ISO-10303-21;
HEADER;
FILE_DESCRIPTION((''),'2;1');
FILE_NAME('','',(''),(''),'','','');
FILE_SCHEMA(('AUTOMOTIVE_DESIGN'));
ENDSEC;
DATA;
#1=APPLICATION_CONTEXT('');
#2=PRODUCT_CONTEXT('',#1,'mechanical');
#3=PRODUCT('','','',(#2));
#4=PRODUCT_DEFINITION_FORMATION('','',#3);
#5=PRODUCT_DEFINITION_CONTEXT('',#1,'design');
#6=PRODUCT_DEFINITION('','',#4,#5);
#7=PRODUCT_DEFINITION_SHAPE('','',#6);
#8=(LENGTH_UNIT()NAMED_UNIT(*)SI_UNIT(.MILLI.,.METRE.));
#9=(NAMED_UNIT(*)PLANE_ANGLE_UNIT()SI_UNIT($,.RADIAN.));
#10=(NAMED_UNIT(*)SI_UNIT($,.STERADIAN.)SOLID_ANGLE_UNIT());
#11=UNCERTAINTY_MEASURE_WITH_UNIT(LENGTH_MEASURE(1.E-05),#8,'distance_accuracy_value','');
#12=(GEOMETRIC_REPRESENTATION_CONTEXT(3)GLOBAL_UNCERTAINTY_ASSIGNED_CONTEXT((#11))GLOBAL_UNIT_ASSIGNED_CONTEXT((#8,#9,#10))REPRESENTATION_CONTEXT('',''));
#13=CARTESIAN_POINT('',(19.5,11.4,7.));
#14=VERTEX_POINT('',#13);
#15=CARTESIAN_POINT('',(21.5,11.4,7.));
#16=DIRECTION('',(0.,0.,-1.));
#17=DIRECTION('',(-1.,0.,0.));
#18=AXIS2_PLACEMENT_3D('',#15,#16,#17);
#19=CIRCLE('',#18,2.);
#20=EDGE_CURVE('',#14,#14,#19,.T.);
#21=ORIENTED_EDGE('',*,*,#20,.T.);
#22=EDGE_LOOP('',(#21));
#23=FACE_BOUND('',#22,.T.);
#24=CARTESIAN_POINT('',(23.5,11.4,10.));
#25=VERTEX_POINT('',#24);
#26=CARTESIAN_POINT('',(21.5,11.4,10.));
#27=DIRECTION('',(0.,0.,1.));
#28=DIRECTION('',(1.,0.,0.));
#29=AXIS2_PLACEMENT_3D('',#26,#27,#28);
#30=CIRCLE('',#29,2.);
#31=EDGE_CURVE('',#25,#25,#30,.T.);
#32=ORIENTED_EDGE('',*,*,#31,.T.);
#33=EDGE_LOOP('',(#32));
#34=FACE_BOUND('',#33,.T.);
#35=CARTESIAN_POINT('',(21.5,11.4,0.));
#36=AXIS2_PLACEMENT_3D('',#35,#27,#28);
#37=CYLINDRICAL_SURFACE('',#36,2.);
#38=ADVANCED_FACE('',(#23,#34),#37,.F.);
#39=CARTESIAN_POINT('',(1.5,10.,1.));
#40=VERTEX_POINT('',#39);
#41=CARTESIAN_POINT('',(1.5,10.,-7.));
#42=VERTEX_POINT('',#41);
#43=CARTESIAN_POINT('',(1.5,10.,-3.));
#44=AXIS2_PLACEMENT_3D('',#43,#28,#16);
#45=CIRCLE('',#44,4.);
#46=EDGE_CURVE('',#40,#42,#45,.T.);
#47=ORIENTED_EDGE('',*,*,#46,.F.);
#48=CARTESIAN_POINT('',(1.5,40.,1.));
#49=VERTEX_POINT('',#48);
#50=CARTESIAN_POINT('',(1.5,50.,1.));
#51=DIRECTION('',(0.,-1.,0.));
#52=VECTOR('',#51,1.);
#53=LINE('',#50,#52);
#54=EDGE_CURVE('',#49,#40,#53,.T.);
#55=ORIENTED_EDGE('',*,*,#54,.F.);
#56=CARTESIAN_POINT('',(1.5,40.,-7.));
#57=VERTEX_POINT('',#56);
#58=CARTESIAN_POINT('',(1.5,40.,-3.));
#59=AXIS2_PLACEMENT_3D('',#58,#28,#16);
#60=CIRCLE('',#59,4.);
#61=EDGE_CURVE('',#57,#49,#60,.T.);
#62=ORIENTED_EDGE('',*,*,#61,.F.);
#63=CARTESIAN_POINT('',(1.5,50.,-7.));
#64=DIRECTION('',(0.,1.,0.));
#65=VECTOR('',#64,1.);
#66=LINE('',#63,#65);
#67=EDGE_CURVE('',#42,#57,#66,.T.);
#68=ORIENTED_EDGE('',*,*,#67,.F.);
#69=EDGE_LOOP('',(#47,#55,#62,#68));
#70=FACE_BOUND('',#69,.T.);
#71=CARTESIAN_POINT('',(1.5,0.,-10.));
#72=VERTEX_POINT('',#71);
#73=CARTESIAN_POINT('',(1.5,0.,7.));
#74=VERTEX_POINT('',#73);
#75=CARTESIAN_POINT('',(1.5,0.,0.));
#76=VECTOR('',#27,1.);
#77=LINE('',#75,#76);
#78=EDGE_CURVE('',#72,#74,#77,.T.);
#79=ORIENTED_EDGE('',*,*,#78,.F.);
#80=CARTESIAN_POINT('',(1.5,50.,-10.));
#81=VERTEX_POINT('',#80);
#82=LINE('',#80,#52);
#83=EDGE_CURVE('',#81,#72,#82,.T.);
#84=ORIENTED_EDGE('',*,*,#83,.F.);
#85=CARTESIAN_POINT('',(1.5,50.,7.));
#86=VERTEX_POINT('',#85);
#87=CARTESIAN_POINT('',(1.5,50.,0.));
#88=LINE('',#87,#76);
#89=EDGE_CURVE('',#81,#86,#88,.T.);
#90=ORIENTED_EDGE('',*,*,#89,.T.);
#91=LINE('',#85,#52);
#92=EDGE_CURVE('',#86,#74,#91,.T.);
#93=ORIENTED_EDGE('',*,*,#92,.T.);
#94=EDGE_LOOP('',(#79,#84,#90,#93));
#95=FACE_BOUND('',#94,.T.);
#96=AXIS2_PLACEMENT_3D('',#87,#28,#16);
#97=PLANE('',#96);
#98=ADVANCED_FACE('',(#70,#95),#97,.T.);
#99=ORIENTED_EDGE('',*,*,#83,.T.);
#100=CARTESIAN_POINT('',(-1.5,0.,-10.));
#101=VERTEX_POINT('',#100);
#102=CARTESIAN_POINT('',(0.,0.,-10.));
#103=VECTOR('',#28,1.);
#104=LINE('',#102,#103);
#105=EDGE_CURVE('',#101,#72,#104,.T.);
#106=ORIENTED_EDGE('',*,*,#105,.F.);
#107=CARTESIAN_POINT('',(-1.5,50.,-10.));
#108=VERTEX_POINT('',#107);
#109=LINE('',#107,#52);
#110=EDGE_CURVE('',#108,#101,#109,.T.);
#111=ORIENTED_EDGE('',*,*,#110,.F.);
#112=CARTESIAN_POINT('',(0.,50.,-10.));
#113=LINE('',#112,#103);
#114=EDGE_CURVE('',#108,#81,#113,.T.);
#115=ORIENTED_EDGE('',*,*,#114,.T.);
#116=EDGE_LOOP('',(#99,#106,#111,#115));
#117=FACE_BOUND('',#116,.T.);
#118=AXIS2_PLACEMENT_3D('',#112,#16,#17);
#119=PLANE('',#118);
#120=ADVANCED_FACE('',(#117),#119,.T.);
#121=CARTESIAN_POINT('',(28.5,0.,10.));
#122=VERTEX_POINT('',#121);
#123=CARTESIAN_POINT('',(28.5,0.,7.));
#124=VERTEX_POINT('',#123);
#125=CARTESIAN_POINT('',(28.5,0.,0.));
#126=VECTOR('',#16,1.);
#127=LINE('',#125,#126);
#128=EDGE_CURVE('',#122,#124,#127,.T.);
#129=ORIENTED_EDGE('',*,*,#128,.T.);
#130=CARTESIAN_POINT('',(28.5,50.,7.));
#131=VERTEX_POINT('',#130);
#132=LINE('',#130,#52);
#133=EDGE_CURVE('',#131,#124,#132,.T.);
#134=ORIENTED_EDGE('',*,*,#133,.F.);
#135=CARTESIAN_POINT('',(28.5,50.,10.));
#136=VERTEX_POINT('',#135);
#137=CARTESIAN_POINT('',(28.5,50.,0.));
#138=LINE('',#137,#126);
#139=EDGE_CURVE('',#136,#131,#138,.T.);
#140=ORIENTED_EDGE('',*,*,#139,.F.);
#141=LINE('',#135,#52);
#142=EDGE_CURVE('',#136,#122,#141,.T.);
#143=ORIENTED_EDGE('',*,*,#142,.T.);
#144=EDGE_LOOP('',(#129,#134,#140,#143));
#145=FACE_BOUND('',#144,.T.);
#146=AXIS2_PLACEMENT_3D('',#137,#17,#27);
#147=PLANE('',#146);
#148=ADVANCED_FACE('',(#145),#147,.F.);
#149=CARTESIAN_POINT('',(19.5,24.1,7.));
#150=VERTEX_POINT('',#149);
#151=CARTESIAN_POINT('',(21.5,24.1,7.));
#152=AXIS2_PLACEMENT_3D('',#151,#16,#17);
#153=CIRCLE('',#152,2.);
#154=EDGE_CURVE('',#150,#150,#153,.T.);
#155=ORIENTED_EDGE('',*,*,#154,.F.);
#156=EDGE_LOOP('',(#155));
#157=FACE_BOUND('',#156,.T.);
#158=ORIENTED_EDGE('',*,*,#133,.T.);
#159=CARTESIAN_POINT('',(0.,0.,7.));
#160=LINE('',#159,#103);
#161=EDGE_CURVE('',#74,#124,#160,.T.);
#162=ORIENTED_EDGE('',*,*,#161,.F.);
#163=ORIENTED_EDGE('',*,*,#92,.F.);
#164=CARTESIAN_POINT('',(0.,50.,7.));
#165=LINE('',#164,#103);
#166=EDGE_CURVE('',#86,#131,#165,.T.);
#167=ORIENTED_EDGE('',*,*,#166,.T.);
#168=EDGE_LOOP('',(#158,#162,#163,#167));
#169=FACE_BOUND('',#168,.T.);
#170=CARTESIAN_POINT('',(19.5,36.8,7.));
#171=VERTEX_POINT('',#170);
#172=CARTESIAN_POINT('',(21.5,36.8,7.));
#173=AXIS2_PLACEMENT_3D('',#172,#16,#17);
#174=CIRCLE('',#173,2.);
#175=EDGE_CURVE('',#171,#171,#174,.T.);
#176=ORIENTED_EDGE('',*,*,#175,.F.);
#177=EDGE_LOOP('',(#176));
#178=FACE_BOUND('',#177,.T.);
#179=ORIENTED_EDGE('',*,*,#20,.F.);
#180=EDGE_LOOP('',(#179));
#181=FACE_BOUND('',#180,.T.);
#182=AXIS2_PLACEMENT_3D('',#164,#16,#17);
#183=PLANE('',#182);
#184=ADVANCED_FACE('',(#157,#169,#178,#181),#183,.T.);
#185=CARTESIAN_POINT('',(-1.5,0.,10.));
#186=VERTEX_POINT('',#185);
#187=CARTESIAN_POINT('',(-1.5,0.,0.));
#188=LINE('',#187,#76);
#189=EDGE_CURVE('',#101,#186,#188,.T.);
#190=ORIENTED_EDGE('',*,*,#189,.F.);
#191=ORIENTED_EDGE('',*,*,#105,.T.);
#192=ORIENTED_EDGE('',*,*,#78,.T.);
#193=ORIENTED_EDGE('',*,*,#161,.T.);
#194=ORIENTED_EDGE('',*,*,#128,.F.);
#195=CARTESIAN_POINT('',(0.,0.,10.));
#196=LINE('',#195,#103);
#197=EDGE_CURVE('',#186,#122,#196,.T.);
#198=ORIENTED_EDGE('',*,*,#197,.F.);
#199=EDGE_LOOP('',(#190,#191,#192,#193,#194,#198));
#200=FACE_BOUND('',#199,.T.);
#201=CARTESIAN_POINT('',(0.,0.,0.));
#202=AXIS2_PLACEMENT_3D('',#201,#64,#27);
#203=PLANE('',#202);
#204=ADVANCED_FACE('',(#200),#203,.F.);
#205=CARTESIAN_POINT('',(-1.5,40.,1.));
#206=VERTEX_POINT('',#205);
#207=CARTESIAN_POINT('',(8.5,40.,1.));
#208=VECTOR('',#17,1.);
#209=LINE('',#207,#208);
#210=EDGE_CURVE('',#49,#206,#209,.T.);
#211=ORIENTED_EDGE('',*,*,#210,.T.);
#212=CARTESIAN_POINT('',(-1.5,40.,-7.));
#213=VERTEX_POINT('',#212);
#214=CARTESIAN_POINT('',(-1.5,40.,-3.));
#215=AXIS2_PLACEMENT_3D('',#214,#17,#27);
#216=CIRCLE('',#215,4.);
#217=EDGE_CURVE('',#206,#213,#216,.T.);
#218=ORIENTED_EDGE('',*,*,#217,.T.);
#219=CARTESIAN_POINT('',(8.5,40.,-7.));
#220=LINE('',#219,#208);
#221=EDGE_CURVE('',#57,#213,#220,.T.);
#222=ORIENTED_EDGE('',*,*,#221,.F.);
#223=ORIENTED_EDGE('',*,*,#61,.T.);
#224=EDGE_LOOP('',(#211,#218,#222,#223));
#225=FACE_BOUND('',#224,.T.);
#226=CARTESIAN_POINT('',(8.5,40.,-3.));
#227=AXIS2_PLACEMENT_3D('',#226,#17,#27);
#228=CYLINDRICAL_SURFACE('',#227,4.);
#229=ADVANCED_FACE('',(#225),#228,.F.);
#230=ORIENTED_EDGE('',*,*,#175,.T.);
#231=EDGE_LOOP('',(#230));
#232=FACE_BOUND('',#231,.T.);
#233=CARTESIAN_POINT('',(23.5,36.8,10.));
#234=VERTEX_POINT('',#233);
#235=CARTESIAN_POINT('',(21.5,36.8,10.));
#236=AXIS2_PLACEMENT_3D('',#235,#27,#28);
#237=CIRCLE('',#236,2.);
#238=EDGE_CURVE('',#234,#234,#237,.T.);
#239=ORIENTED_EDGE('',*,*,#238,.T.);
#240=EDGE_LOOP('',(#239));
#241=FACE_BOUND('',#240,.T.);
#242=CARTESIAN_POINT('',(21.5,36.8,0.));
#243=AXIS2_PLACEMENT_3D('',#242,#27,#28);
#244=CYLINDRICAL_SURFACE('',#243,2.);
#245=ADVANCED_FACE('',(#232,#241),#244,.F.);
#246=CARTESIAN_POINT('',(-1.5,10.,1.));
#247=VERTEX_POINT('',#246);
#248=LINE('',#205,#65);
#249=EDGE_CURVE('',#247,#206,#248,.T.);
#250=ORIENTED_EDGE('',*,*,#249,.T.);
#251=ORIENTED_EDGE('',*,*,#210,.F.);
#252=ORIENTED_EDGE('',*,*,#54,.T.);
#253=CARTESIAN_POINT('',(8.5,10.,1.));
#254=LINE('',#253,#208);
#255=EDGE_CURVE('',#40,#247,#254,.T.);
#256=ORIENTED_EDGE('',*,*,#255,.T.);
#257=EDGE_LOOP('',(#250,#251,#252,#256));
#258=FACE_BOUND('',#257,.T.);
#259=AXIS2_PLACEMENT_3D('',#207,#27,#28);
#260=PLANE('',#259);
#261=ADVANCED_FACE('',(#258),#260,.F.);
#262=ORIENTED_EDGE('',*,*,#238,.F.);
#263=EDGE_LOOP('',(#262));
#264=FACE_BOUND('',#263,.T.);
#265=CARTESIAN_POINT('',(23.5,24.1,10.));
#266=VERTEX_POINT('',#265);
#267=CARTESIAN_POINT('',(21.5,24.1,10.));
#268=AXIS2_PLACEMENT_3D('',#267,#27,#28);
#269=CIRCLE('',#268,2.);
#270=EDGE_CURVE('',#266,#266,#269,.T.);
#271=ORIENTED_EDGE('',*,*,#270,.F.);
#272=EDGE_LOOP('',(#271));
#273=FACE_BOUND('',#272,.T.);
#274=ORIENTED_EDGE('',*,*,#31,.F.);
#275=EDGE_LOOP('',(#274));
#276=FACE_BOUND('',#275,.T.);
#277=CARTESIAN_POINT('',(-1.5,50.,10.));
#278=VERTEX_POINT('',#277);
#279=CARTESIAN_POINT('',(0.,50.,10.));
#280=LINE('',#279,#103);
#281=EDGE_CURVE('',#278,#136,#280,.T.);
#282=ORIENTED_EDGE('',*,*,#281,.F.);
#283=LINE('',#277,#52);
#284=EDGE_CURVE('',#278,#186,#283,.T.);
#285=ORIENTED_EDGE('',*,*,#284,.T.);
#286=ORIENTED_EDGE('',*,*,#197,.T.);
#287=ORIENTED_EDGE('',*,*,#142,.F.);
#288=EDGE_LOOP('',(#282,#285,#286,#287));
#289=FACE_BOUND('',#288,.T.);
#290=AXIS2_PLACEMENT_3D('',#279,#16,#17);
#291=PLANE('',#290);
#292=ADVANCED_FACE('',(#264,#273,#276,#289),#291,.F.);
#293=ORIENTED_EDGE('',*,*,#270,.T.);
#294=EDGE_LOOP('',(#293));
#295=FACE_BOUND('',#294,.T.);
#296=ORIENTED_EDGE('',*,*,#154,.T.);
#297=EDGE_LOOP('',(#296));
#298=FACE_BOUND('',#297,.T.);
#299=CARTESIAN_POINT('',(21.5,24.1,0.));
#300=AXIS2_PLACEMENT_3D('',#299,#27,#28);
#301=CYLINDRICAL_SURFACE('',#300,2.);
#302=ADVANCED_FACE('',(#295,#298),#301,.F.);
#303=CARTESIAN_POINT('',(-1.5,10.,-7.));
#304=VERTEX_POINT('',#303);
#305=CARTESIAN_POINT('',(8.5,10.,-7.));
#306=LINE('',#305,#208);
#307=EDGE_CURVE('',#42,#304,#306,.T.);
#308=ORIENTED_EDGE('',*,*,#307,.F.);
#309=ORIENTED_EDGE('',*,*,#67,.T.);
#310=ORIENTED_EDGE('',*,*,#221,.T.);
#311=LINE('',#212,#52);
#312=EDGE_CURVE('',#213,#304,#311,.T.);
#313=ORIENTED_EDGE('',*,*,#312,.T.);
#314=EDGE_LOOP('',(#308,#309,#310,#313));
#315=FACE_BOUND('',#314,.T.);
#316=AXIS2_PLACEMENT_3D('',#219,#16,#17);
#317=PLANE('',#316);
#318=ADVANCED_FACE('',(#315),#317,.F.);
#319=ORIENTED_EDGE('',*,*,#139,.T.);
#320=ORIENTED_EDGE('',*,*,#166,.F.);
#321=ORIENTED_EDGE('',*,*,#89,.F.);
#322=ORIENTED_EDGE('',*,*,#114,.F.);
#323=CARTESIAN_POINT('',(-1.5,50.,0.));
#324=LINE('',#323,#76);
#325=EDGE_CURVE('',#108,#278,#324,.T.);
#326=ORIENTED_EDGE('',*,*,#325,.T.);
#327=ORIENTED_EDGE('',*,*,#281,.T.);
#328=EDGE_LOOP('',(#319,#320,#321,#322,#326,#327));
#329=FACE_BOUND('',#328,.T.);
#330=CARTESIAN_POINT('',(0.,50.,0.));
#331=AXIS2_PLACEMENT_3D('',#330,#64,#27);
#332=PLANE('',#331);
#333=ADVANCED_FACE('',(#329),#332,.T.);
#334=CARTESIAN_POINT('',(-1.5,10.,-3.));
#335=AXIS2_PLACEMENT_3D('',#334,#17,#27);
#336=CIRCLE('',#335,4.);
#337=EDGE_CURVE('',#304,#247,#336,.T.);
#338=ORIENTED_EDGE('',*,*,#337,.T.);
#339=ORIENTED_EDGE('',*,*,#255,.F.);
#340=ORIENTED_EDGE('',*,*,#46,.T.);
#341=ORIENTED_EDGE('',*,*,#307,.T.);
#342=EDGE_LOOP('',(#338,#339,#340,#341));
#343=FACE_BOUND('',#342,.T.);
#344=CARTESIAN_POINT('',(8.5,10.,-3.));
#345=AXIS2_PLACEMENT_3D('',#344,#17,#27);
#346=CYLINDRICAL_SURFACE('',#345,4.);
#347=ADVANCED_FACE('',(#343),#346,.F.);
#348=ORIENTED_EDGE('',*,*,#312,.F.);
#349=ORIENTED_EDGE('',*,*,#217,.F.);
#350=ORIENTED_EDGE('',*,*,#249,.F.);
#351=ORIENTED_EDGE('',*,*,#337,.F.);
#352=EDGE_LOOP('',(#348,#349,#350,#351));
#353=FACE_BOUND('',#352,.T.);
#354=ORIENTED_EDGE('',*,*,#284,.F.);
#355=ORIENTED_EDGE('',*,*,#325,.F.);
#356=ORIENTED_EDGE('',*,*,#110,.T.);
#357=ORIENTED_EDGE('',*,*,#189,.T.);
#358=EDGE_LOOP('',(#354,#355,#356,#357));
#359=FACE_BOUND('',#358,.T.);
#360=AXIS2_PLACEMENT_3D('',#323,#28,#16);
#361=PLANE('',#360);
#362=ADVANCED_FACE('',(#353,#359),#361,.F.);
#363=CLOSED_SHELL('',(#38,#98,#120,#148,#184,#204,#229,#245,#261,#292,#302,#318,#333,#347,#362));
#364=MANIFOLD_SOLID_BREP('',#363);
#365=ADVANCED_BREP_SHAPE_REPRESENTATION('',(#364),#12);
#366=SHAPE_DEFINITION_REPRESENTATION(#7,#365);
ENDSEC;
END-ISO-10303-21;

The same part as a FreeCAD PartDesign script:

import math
import FreeCAD as App
import Part
import Sketcher

V = App.Vector
Q = App.Units.Quantity


def add_polygon(sketch, points):
    """Adds a closed chain of lines whose ends are joined by coincident constraints."""
    first, n = sketch.GeometryCount, len(points)
    for a, b in zip(points, points[1:] + points[:1]):
        sketch.addGeometry(Part.LineSegment(App.Vector(*a, 0), App.Vector(*b, 0)), False)
    for i in range(n):
        sketch.addConstraint(Sketcher.Constraint("Coincident", first + i, 2, first + (i + 1) % n, 1))

doc = App.newDocument("Part")
body = doc.addObject("PartDesign::Body", "Body")

# Sketch on XZ plane
sketch1 = body.newObject("Sketcher::SketchObject", "Sketch")
sketch1.AttachmentSupport = (doc.getObject("XZ_Plane"), [""])
sketch1.MapMode = "FlatFace"
add_polygon(sketch1, [(-1.5, -10), (-1.5, 10), (28.5, 10), (28.5, 7), (1.5, 7), (1.5, -10)])  # lines 0-5
sketch1.addConstraint([
    Sketcher.Constraint("Vertical", 0),
    Sketcher.Constraint("Horizontal", 1),
    Sketcher.Constraint("Vertical", 2),
    Sketcher.Constraint("Horizontal", 3),
    Sketcher.Constraint("Vertical", 4),
    Sketcher.Constraint("Horizontal", 5),
    Sketcher.Constraint("Symmetric", 0, 2, 4, 2, -1, 1),
    Sketcher.Constraint("Equal", 5, 2),
    Sketcher.Constraint("DistanceX", 1, 1, 1, 2, Q("30 mm")),
    Sketcher.Constraint("DistanceX", 3, 2, 3, 1, Q("27 mm")),
    Sketcher.Constraint("DistanceY", 0, 1, 0, 2, Q("20 mm")),
])
pad1 = body.newObject("PartDesign::Pad", "Pad")
pad1.Profile = sketch1
pad1.Length = 50
pad1.Reversed = True

# Sketch on XY plane
sketch2 = body.newObject("Sketcher::SketchObject", "Sketch001")
sketch2.AttachmentSupport = (doc.getObject("XY_Plane"), [""])
sketch2.MapMode = "FlatFace"
sketch2.AttachmentOffset = App.Placement(V(0, 0, 10), App.Rotation())
sketch2.addGeometry([
    Part.Circle(V(21.5, 36.8, 0), V(0, 0, 1), 2),
    Part.Circle(V(21.5, 24.1, 0), V(0, 0, 1), 2),
    Part.Circle(V(21.5, 11.4, 0), V(0, 0, 1), 2),
], False)
sketch2.addConstraint([
    Sketcher.Constraint("Equal", 0, 1),
    Sketcher.Constraint("Equal", 1, 2),
    Sketcher.Constraint("Vertical", 0, 3, 1, 3),
    Sketcher.Constraint("Vertical", 1, 3, 2, 3),
    Sketcher.Constraint("Diameter", 0, Q("4 mm")),
    Sketcher.Constraint("DistanceX", -1, 1, 0, 3, Q("21.5 mm")),
    Sketcher.Constraint("DistanceY", -1, 1, 0, 3, Q("36.8 mm")),
    Sketcher.Constraint("DistanceY", -1, 1, 1, 3, Q("24.1 mm")),
    Sketcher.Constraint("DistanceY", -1, 1, 2, 3, Q("11.4 mm")),
])
pocket1 = body.newObject("PartDesign::Pocket", "Pocket")
pocket1.Profile = sketch2
pocket1.Length = 10

# Sketch on YZ plane
sketch3 = body.newObject("Sketcher::SketchObject", "Sketch002")
sketch3.AttachmentSupport = (doc.getObject("YZ_Plane"), [""])
sketch3.MapMode = "FlatFace"
sketch3.AttachmentOffset = App.Placement(V(0, 0, -1.5), App.Rotation())
sketch3.addGeometry([
    Part.LineSegment(V(10, 1, 0), V(40, 1, 0)),
    Part.ArcOfCircle(Part.Circle(V(40, -3, 0), V(0, 0, 1), 4), math.radians(-90), math.radians(90)),
    Part.LineSegment(V(40, -7, 0), V(10, -7, 0)),
    Part.ArcOfCircle(Part.Circle(V(10, -3, 0), V(0, 0, 1), 4), math.radians(90), math.radians(270)),
], False)
sketch3.addConstraint([
    Sketcher.Constraint("Tangent", 0, 2, 1, 2),
    Sketcher.Constraint("Tangent", 1, 1, 2, 1),
    Sketcher.Constraint("Tangent", 2, 2, 3, 2),
    Sketcher.Constraint("Tangent", 3, 1, 0, 1),
    Sketcher.Constraint("Horizontal", 0),
    Sketcher.Constraint("Horizontal", 2),
    Sketcher.Constraint("Radius", 1, Q("4 mm")),
    Sketcher.Constraint("DistanceX", 0, 1, 0, 2, Q("30 mm")),
    Sketcher.Constraint("DistanceX", -1, 1, 1, 3, Q("40 mm")),
    Sketcher.Constraint("DistanceY", 1, 3, -1, 1, Q("3 mm")),
])
pocket2 = body.newObject("PartDesign::Pocket", "Pocket001")
pocket2.Profile = sketch3
pocket2.Length = 10
pocket2.Reversed = True

doc.recompute()
